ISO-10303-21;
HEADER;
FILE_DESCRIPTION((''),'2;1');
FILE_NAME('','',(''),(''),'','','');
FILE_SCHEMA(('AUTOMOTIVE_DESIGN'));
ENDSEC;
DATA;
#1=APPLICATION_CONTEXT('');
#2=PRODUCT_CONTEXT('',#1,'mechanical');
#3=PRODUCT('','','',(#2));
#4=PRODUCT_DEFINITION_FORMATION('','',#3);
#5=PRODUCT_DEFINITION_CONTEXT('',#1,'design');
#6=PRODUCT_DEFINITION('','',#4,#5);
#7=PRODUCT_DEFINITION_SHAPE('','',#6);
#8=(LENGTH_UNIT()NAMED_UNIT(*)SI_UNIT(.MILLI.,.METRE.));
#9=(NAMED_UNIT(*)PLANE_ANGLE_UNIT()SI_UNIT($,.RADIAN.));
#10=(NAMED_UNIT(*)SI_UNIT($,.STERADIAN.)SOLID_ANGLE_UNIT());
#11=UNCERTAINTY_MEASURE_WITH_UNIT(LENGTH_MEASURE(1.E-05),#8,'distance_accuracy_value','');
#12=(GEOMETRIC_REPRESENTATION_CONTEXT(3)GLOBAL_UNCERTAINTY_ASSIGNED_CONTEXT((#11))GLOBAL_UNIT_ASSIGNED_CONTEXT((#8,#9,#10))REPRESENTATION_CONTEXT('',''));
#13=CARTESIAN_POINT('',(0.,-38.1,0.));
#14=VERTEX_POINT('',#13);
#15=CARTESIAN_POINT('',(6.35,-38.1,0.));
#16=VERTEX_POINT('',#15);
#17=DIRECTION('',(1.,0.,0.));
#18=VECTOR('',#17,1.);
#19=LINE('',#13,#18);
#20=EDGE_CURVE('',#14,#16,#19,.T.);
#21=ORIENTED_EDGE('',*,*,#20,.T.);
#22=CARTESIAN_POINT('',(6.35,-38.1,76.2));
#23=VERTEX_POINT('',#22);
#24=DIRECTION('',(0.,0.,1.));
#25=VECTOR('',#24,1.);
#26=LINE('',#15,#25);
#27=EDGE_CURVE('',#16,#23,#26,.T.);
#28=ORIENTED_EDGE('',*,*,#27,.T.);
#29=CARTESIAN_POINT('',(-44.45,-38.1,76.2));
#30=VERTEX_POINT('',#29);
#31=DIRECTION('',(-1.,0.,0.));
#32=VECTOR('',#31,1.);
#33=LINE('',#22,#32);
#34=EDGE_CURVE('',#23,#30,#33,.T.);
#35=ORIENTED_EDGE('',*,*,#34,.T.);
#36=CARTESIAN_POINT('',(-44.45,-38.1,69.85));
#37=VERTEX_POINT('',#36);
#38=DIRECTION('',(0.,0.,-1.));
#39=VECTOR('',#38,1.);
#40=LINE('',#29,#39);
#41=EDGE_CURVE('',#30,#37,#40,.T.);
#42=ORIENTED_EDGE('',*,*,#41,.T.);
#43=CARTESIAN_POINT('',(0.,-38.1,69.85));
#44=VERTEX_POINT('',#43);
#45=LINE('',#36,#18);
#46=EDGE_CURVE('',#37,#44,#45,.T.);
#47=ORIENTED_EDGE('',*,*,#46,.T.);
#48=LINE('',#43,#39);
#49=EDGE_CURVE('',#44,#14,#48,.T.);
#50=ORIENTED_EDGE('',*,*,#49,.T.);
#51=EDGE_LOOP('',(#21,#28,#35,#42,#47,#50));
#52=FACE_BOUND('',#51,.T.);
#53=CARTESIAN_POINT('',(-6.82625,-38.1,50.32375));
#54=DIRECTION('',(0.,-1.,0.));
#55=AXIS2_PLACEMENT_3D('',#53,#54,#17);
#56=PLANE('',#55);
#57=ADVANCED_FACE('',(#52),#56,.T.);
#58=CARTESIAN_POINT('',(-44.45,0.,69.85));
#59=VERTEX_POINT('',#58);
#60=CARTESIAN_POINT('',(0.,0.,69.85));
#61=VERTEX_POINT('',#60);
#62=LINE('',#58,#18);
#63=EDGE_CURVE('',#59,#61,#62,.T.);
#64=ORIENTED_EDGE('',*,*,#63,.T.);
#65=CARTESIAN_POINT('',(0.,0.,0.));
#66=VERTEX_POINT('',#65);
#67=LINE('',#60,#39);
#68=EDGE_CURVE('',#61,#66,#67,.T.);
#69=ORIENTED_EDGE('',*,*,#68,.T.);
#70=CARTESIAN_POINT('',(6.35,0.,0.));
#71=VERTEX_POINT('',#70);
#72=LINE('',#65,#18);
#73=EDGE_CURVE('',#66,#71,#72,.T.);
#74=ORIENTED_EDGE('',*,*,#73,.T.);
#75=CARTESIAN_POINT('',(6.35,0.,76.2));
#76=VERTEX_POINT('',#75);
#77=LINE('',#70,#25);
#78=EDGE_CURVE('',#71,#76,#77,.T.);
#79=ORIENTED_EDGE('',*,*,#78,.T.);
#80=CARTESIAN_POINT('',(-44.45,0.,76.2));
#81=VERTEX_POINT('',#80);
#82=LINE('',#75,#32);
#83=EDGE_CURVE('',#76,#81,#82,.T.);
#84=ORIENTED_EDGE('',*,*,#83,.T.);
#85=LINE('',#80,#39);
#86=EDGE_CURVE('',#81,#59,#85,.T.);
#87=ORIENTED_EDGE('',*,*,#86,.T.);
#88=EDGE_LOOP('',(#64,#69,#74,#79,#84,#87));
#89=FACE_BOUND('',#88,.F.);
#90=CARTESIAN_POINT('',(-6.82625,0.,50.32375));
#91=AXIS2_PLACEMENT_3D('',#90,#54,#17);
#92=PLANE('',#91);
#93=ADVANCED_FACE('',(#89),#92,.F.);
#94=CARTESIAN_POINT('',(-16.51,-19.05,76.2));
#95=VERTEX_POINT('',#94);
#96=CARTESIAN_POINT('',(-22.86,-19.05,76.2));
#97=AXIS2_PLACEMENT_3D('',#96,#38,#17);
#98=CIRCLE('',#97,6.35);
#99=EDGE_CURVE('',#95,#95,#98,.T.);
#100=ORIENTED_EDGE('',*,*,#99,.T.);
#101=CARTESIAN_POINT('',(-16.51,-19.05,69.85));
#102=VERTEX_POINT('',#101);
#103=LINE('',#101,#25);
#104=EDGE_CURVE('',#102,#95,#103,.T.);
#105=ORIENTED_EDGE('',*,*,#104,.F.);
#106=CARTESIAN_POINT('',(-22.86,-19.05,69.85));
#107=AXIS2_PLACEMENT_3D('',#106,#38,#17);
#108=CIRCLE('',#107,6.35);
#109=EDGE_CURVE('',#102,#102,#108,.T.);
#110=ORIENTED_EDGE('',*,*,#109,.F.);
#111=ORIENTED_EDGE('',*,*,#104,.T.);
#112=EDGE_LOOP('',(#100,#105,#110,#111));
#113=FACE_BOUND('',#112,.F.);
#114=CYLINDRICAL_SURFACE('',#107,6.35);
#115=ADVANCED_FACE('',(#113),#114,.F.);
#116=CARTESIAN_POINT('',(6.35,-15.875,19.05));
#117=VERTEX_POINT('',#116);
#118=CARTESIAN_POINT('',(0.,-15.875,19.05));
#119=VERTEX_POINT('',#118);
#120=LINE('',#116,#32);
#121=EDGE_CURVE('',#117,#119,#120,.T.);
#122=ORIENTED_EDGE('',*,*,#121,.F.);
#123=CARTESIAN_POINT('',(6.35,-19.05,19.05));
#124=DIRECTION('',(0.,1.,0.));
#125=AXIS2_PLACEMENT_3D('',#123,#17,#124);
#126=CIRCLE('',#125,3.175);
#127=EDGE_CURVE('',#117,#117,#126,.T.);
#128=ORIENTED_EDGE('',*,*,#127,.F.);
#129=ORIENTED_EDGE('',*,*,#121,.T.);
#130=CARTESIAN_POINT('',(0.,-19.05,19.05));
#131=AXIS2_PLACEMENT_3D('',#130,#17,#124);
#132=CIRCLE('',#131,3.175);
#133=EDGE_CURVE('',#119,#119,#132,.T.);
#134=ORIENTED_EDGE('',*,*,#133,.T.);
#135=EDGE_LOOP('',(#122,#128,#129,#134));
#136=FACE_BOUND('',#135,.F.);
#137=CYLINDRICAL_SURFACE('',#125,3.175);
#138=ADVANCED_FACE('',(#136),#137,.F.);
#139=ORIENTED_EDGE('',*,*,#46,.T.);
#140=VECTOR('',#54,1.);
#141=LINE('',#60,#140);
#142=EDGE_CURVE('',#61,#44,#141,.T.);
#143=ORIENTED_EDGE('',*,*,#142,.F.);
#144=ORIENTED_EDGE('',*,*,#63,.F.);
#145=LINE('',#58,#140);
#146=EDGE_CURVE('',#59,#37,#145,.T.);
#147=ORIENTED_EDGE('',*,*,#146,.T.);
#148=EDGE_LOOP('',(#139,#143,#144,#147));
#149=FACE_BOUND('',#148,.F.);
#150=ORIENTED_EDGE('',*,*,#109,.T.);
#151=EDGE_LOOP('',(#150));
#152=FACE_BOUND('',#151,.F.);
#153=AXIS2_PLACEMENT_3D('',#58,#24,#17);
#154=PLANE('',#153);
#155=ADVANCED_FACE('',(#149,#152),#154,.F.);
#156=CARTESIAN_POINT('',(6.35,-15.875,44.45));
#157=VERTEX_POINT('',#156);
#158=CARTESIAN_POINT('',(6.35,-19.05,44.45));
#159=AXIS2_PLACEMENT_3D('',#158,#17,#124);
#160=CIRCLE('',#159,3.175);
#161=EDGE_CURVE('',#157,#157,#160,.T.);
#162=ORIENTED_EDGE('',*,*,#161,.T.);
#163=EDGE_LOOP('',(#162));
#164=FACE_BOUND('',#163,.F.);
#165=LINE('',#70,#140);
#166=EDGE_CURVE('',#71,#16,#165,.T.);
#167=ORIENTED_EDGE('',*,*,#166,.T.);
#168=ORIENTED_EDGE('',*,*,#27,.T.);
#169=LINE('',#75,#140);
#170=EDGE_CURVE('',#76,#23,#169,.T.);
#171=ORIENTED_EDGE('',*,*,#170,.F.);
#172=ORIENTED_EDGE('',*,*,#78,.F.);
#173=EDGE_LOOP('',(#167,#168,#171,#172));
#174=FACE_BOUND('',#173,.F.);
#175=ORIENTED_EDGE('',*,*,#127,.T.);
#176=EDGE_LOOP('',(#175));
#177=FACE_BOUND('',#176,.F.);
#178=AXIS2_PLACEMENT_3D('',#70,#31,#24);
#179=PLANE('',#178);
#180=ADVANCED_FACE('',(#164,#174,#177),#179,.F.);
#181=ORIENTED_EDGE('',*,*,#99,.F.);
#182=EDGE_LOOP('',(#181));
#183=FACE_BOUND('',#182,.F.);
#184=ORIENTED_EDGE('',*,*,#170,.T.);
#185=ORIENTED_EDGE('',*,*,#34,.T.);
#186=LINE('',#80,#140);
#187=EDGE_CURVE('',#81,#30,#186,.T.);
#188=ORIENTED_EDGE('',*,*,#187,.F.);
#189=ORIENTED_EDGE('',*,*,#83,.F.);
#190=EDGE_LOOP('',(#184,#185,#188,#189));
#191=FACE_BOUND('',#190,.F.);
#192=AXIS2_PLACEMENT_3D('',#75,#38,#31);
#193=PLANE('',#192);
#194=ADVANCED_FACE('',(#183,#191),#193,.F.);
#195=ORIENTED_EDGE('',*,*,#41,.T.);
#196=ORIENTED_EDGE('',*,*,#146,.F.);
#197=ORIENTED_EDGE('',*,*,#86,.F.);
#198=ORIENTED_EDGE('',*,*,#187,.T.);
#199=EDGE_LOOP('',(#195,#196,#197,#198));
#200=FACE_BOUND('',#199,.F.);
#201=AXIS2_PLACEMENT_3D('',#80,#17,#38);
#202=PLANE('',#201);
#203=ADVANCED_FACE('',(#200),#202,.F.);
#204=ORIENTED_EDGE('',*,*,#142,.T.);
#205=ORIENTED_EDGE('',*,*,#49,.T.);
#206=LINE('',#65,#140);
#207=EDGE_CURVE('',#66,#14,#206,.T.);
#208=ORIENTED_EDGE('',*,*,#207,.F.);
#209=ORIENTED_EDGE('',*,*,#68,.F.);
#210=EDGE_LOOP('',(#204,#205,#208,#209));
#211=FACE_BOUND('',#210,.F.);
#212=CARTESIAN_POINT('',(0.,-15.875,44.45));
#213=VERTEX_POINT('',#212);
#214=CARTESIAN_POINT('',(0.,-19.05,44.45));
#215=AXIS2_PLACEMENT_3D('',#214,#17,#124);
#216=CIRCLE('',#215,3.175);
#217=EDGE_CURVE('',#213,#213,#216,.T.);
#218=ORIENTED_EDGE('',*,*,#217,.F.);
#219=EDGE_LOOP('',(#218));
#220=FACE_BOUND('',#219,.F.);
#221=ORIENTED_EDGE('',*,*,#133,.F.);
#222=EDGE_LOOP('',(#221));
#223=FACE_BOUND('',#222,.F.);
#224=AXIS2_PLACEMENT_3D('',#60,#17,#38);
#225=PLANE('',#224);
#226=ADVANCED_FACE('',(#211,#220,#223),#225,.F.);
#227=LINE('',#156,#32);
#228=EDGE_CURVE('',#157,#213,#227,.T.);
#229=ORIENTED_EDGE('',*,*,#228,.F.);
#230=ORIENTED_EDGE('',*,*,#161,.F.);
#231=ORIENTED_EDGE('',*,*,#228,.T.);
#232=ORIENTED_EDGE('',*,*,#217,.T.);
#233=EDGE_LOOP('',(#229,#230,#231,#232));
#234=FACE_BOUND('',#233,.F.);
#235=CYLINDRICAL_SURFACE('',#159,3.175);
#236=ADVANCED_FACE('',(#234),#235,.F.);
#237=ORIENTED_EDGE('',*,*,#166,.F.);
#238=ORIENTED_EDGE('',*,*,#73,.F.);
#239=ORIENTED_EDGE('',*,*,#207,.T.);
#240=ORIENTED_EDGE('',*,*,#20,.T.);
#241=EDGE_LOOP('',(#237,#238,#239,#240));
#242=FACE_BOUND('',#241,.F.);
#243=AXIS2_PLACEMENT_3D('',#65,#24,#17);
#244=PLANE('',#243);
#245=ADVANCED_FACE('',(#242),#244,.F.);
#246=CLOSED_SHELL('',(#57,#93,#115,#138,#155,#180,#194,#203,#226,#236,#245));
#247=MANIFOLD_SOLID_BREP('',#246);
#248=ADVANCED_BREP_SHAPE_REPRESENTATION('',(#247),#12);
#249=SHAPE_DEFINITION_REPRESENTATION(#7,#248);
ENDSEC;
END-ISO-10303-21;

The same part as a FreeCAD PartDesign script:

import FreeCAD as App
import Part
import Sketcher
Q = App.Units.Quantity

doc = App.newDocument("Part")
params = doc.addObject("Spreadsheet::Sheet", "Params")
for row, (alias, value) in enumerate([
    ("sketch1_width", "2 in"),
    ("sketch1_height", "3 in"),
    ("sketch1_width2", "0.25 in"),
    ("pad1_length", "1.5 in"),
    ("sketch2_diameter", "0.25 in"),
    ("pocket1_length", "1 in"),
    ("sketch3_diameter", "0.5 in"),
    ("pocket2_length", "1 in"),
], start=1):
    params.set(f"A{row}", alias)
    params.set(f"B{row}", "=" + value)
    params.setAlias(f"B{row}", alias)

body = doc.addObject("PartDesign::Body", "Body")

# Sketch on XZ plane
sketch1 = doc.addObject("Sketcher::SketchObject", "Sketch")
body.addObject(sketch1)
sketch1.AttachmentSupport = (doc.XZ_Plane, [""])
sketch1.MapMode = "FlatFace"
sketch1.addGeometry(Part.LineSegment(App.Vector(0, 69.85, 0), App.Vector(0, 0, 0)), False)
sketch1.addGeometry(Part.LineSegment(App.Vector(0, 0, 0), App.Vector(6.35, 0, 0)), False)
sketch1.addGeometry(Part.LineSegment(App.Vector(6.35, 0, 0), App.Vector(6.35, 76.2, 0)), False)
sketch1.addGeometry(Part.LineSegment(App.Vector(6.35, 76.2, 0), App.Vector(-44.45, 76.2, 0)), False)
sketch1.addGeometry(Part.LineSegment(App.Vector(-44.45, 76.2, 0), App.Vector(-44.45, 69.85, 0)), False)
sketch1.addGeometry(Part.LineSegment(App.Vector(-44.45, 69.85, 0), App.Vector(0, 69.85, 0)), False)
sketch1.addConstraint(Sketcher.Constraint("Coincident", 0, 2, 1, 1))
sketch1.addConstraint(Sketcher.Constraint("Coincident", 1, 2, 2, 1))
sketch1.addConstraint(Sketcher.Constraint("Coincident", 2, 2, 3, 1))
sketch1.addConstraint(Sketcher.Constraint("Coincident", 3, 2, 4, 1))
sketch1.addConstraint(Sketcher.Constraint("Coincident", 4, 2, 5, 1))
sketch1.addConstraint(Sketcher.Constraint("Coincident", 5, 2, 0, 1))
sketch1.addConstraint(Sketcher.Constraint("Vertical", 0))
sketch1.addConstraint(Sketcher.Constraint("Horizontal", 1))
sketch1.addConstraint(Sketcher.Constraint("Vertical", 2))
sketch1.addConstraint(Sketcher.Constraint("Horizontal", 3))
sketch1.addConstraint(Sketcher.Constraint("Vertical", 4))
sketch1.addConstraint(Sketcher.Constraint("Horizontal", 5))
sketch1.addConstraint(Sketcher.Constraint("Coincident", 0, 2, -1, 1))
sketch1.addConstraint(Sketcher.Constraint("Equal", 1, 4))
sketch1.addConstraint(Sketcher.Constraint("DistanceX", 3, 2, 3, 1, Q("2 in")))
sketch1.addConstraint(Sketcher.Constraint("DistanceY", 2, 1, 2, 2, Q("3 in")))
sketch1.addConstraint(Sketcher.Constraint("DistanceX", 1, 1, 1, 2, Q("0.25 in")))
sketch1.setExpression("Constraints[14]", "Params.sketch1_width")
sketch1.setExpression("Constraints[15]", "Params.sketch1_height")
sketch1.setExpression("Constraints[16]", "Params.sketch1_width2")
pad1 = doc.addObject("PartDesign::Pad", "Pad")
body.addObject(pad1)
pad1.Profile = sketch1
pad1.setExpression("Length", "Params.pad1_length")

# Sketch on YZ plane
sketch2 = doc.addObject("Sketcher::SketchObject", "Sketch001")
body.addObject(sketch2)
sketch2.AttachmentSupport = (doc.YZ_Plane, [""])
sketch2.MapMode = "FlatFace"
sketch2.AttachmentOffset = App.Placement(App.Vector(0, 0, 0.25 * 25.4), App.Rotation())
sketch2.addGeometry(Part.Circle(App.Vector(-19.05, 44.45, 0), App.Vector(0, 0, 1), 3.175), False)
sketch2.addGeometry(Part.Circle(App.Vector(-19.05, 19.05, 0), App.Vector(0, 0, 1), 3.175), False)
sketch2.addConstraint(Sketcher.Constraint("Equal", 0, 1))
sketch2.addConstraint(Sketcher.Constraint("Vertical", 0, 3, 1, 3))
sketch2.addConstraint(Sketcher.Constraint("Diameter", 0, Q("0.25 in")))
sketch2.addConstraint(Sketcher.Constraint("DistanceY", 1, 3, 0, 3, Q("1 in")))
sketch2.addConstraint(Sketcher.Constraint("DistanceX", 0, 3, -1, 1, Q("0.75 in")))
sketch2.addConstraint(Sketcher.Constraint("DistanceY", -1, 1, 0, 3, Q("1.75 in")))
sketch2.setExpression("Constraints[2]", "Params.sketch2_diameter")
pocket1 = doc.addObject("PartDesign::Pocket", "Pocket")
body.addObject(pocket1)
pocket1.Profile = sketch2
pocket1.setExpression("Length", "Params.pocket1_length")

# Sketch on XY plane
sketch3 = doc.addObject("Sketcher::SketchObject", "Sketch002")
body.addObject(sketch3)
sketch3.AttachmentSupport = (doc.XY_Plane, [""])
sketch3.MapMode = "FlatFace"
sketch3.AttachmentOffset = App.Placement(App.Vector(0, 0, 2.75 * 25.4), App.Rotation())
sketch3.addGeometry(Part.Circle(App.Vector(-22.86, -19.05, 0), App.Vector(0, 0, 1), 6.35), False)
sketch3.addConstraint(Sketcher.Constraint("Diameter", 0, Q("0.5 in")))
sketch3.addConstraint(Sketcher.Constraint("DistanceX", 0, 3, -1, 1, Q("0.9 in")))
sketch3.addConstraint(Sketcher.Constraint("DistanceY", 0, 3, -1, 1, Q("0.75 in")))
sketch3.setExpression("Constraints[0]", "Params.sketch3_diameter")
pocket2 = doc.addObject("PartDesign::Pocket", "Pocket001")
body.addObject(pocket2)
pocket2.Profile = sketch3
pocket2.setExpression("Length", "Params.pocket2_length")
pocket2.Reversed = True

doc.recompute()
